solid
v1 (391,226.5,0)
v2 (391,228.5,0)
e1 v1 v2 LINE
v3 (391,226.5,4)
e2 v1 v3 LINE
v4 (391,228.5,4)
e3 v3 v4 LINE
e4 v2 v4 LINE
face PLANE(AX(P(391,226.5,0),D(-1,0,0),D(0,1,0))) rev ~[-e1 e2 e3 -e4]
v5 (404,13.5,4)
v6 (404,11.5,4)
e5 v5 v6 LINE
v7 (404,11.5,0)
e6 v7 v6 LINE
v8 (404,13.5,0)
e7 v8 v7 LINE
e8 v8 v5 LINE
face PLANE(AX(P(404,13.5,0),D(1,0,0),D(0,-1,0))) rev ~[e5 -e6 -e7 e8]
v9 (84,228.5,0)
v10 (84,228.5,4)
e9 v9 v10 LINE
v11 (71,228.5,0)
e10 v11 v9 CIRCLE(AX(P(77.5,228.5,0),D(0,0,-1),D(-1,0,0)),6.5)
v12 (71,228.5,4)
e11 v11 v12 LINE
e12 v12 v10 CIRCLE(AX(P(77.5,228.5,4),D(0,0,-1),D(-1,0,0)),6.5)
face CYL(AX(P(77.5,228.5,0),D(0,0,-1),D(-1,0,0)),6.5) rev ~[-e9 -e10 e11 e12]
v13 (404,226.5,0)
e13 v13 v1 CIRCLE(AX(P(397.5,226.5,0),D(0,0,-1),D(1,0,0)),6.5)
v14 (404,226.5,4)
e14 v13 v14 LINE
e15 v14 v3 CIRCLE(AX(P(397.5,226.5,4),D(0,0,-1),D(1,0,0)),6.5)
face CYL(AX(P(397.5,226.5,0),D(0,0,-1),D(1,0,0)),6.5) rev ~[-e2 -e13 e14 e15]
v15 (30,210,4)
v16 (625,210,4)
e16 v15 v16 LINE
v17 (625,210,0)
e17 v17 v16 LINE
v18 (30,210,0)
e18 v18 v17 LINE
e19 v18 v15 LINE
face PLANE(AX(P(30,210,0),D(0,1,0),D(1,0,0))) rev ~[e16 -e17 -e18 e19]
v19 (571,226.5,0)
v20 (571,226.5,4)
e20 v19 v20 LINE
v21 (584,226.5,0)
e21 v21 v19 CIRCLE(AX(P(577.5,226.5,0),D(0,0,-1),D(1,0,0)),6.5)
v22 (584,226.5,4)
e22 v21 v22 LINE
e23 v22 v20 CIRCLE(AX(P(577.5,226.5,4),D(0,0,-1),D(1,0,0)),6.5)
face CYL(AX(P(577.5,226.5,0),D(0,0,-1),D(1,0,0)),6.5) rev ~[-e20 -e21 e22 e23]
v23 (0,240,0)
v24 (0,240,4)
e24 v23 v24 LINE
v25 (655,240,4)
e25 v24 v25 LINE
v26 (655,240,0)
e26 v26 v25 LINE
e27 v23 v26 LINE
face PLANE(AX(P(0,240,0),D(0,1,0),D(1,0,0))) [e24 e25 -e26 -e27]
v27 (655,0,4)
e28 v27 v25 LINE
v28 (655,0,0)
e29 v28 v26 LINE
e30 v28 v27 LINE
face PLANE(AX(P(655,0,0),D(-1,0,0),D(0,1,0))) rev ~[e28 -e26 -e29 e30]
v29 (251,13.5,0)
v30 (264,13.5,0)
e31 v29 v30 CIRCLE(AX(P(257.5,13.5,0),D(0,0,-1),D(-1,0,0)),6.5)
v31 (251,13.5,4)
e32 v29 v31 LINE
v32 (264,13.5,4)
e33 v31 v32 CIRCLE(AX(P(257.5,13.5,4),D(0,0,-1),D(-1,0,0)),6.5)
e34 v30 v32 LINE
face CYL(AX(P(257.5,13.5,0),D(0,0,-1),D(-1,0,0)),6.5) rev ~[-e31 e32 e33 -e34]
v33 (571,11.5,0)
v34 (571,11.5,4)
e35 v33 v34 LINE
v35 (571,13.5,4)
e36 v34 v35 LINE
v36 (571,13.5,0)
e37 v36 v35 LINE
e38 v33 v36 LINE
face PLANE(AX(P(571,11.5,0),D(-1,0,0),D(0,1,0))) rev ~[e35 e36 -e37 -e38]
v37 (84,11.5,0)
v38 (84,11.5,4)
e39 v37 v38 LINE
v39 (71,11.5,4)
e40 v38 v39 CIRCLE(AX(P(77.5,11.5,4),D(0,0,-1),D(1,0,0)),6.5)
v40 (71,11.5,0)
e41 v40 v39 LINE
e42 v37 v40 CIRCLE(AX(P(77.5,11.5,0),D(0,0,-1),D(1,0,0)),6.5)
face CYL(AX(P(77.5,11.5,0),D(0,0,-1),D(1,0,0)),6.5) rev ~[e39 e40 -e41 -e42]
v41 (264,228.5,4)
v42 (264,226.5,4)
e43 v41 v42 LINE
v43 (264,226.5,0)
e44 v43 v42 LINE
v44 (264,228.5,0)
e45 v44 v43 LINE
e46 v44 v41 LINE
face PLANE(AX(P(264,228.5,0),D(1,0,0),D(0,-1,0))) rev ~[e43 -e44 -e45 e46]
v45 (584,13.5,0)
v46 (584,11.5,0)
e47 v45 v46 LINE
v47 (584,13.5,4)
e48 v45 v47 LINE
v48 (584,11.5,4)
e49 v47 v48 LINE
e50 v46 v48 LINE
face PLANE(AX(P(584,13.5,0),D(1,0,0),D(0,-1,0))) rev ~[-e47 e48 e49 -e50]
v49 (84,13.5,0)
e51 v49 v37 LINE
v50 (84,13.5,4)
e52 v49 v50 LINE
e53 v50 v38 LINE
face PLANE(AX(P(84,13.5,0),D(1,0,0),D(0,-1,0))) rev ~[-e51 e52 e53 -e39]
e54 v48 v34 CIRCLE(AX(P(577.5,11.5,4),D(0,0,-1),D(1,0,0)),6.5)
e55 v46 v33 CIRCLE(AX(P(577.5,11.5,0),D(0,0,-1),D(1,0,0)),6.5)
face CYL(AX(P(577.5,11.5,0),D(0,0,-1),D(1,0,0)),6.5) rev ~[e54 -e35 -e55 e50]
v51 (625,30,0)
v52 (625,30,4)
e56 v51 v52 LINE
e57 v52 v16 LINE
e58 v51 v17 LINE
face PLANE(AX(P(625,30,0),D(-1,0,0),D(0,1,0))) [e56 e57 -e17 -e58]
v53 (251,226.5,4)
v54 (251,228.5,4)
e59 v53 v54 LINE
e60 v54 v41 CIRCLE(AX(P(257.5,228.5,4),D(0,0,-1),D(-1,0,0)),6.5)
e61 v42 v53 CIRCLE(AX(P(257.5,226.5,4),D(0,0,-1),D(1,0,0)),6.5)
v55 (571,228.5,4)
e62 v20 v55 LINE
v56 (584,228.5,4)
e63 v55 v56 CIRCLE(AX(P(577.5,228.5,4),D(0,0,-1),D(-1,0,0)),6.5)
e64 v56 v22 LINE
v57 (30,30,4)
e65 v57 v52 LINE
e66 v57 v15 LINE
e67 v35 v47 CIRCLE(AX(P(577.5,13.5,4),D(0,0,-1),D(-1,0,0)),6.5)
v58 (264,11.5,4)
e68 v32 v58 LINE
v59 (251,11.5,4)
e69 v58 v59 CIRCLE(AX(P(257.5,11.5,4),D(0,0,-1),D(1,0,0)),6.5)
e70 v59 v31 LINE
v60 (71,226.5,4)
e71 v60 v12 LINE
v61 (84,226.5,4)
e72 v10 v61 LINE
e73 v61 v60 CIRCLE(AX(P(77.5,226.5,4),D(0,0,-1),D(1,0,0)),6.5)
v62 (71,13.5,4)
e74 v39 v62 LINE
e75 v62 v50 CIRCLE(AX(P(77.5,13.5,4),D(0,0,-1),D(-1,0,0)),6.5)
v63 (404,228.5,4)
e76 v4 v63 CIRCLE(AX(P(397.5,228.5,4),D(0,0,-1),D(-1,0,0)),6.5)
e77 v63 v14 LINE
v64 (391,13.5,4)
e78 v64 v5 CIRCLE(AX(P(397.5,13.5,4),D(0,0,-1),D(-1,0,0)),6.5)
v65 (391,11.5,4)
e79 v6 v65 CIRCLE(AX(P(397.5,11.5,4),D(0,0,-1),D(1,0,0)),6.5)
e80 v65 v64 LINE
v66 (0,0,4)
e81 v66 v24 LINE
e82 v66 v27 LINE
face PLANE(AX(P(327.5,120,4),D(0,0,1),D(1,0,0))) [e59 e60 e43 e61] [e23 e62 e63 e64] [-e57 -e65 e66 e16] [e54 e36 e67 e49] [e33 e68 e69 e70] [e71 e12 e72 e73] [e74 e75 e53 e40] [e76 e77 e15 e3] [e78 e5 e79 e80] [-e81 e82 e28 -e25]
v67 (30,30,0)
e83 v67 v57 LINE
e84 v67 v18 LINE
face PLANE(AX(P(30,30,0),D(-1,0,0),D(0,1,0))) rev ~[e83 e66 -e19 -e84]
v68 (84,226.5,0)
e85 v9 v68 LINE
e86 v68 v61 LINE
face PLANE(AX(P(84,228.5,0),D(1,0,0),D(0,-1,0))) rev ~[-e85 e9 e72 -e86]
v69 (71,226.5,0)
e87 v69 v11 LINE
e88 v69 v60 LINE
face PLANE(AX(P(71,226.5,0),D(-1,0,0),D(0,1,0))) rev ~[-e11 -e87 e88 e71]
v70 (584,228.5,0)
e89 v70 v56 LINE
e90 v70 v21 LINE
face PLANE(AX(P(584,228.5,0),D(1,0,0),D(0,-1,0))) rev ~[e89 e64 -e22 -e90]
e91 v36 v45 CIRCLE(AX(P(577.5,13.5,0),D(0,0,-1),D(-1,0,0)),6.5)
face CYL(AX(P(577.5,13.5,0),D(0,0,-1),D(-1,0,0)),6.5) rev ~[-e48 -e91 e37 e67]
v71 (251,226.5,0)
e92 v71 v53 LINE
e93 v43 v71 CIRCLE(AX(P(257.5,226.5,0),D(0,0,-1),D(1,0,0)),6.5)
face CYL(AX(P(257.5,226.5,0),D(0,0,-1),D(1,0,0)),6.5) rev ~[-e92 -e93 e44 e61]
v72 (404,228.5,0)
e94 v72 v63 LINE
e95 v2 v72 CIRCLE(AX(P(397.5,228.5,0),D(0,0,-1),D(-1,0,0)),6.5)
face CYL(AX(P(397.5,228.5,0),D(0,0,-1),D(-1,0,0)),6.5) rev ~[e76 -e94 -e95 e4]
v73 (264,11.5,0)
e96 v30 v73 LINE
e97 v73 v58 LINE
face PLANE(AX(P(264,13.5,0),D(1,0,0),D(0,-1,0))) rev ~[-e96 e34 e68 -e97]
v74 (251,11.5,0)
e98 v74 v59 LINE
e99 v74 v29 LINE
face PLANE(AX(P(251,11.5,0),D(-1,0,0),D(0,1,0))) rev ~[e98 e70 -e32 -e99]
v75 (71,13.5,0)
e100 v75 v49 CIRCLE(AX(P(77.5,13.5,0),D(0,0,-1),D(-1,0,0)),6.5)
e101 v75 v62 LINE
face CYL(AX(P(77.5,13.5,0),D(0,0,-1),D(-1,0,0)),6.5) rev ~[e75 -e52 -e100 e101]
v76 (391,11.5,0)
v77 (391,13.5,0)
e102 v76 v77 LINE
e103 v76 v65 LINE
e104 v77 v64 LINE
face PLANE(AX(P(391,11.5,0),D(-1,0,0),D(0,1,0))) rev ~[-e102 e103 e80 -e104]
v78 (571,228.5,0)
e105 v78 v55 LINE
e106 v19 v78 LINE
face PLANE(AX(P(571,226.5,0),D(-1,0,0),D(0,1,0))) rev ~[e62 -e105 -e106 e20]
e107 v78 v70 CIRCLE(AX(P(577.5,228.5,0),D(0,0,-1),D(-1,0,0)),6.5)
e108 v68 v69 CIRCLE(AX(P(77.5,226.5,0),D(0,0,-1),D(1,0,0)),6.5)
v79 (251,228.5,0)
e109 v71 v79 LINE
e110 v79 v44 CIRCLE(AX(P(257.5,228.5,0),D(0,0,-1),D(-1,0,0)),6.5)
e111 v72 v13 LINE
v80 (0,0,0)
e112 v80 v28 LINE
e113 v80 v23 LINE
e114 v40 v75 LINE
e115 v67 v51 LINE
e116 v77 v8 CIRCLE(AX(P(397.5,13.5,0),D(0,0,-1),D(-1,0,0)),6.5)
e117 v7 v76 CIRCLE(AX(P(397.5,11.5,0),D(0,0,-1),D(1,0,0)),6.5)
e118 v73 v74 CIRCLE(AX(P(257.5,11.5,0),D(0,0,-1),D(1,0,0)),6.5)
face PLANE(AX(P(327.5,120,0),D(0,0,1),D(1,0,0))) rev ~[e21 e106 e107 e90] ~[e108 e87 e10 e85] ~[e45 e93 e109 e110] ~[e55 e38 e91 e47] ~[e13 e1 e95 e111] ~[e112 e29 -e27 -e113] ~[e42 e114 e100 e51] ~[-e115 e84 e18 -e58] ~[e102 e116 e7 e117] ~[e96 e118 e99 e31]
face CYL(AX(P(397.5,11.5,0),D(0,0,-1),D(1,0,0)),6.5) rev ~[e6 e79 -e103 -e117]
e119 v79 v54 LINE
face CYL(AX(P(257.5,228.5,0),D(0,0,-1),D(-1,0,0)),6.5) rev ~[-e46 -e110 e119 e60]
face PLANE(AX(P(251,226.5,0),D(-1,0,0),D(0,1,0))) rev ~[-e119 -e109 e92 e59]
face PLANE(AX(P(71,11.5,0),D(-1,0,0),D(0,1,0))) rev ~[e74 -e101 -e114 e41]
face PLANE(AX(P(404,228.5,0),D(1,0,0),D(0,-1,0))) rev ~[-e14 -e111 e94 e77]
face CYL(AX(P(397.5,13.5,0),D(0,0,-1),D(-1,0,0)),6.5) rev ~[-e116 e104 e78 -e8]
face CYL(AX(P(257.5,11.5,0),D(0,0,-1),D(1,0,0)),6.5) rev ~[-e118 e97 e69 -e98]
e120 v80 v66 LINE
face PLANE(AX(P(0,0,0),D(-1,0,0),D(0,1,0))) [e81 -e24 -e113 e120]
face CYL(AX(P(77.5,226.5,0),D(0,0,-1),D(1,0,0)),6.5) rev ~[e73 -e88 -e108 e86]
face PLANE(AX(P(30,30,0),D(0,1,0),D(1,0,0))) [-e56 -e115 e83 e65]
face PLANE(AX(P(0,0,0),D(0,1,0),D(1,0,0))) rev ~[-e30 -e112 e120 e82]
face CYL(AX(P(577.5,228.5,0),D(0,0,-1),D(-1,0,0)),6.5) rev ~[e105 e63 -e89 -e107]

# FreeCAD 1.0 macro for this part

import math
import FreeCAD as App
import Part
import Sketcher

V = App.Vector


def add_polygon(sketch, points):
    """Adds a closed chain of lines whose ends are joined by coincident constraints."""
    first, n = sketch.GeometryCount, len(points)
    for a, b in zip(points, points[1:] + points[:1]):
        sketch.addGeometry(Part.LineSegment(App.Vector(*a, 0), App.Vector(*b, 0)), False)
    for i in range(n):
        sketch.addConstraint(Sketcher.Constraint("Coincident", first + i, 2, first + (i + 1) % n, 1))

doc = App.newDocument("Part")
body = doc.addObject("PartDesign::Body", "Body")

sketch1 = body.newObject("Sketcher::SketchObject", "Sketch")
sketch1.AttachmentSupport = (doc.getObject("XY_Plane"), [""])
sketch1.MapMode = "FlatFace"
add_polygon(sketch1, [(0, 240), (0, 0), (655, 0), (655, 240)])
sketch1.addGeometry(Part.ArcOfCircle(Part.Circle(V(77.5, 13.5, 0), V(0, 0, 1), 6.5), math.radians(0), math.radians(180)), False)
sketch1.addGeometry(Part.LineSegment(V(84, 13.5, 0), V(84, 11.5, 0)), False)
sketch1.addGeometry(Part.ArcOfCircle(Part.Circle(V(77.5, 11.5, 0), V(0, 0, 1), 6.5), math.radians(180), math.radians(360)), False)
sketch1.addGeometry(Part.LineSegment(V(71, 11.5, 0), V(71, 13.5, 0)), False)
sketch1.addGeometry(Part.ArcOfCircle(Part.Circle(V(257.5, 13.5, 0), V(0, 0, 1), 6.5), math.radians(0), math.radians(180)), False)
sketch1.addGeometry(Part.LineSegment(V(264, 13.5, 0), V(264, 11.5, 0)), False)
sketch1.addGeometry(Part.ArcOfCircle(Part.Circle(V(257.5, 11.5, 0), V(0, 0, 1), 6.5), math.radians(180), math.radians(360)), False)
sketch1.addGeometry(Part.LineSegment(V(251, 11.5, 0), V(251, 13.5, 0)), False)
sketch1.addGeometry(Part.ArcOfCircle(Part.Circle(V(397.5, 13.5, 0), V(0, 0, 1), 6.5), math.radians(0), math.radians(180)), False)
sketch1.addGeometry(Part.LineSegment(V(404, 13.5, 0), V(404, 11.5, 0)), False)
sketch1.addGeometry(Part.ArcOfCircle(Part.Circle(V(397.5, 11.5, 0), V(0, 0, 1), 6.5), math.radians(180), math.radians(360)), False)
sketch1.addGeometry(Part.LineSegment(V(391, 11.5, 0), V(391, 13.5, 0)), False)
sketch1.addGeometry(Part.ArcOfCircle(Part.Circle(V(577.5, 13.5, 0), V(0, 0, 1), 6.5), math.radians(0), math.radians(180)), False)
sketch1.addGeometry(Part.LineSegment(V(584, 13.5, 0), V(584, 11.5, 0)), False)
sketch1.addGeometry(Part.ArcOfCircle(Part.Circle(V(577.5, 11.5, 0), V(0, 0, 1), 6.5), math.radians(180), math.radians(360)), False)
sketch1.addGeometry(Part.LineSegment(V(571, 11.5, 0), V(571, 13.5, 0)), False)
sketch1.addGeometry(Part.LineSegment(V(71, 226.5, 0), V(71, 228.5, 0)), False)
sketch1.addGeometry(Part.ArcOfCircle(Part.Circle(V(77.5, 228.5, 0), V(0, 0, 1), 6.5), math.radians(0), math.radians(180)), False)
sketch1.addGeometry(Part.LineSegment(V(84, 228.5, 0), V(84, 226.5, 0)), False)
sketch1.addGeometry(Part.ArcOfCircle(Part.Circle(V(77.5, 226.5, 0), V(0, 0, 1), 6.5), math.radians(180), math.radians(360)), False)
sketch1.addGeometry(Part.LineSegment(V(251, 226.5, 0), V(251, 228.5, 0)), False)
sketch1.addGeometry(Part.ArcOfCircle(Part.Circle(V(257.5, 228.5, 0), V(0, 0, 1), 6.5), math.radians(0), math.radians(180)), False)
sketch1.addGeometry(Part.LineSegment(V(264, 228.5, 0), V(264, 226.5, 0)), False)
sketch1.addGeometry(Part.ArcOfCircle(Part.Circle(V(257.5, 226.5, 0), V(0, 0, 1), 6.5), math.radians(180), math.radians(360)), False)
add_polygon(sketch1, [(625, 30), (30, 30), (30, 210), (625, 210)])
sketch1.addGeometry(Part.ArcOfCircle(Part.Circle(V(397.5, 226.5, 0), V(0, 0, 1), 6.5), math.radians(180), math.radians(360)), False)
sketch1.addGeometry(Part.LineSegment(V(391, 226.5, 0), V(391, 228.5, 0)), False)
sketch1.addGeometry(Part.ArcOfCircle(Part.Circle(V(397.5, 228.5, 0), V(0, 0, 1), 6.5), math.radians(0), math.radians(180)), False)
sketch1.addGeometry(Part.LineSegment(V(404, 228.5, 0), V(404, 226.5, 0)), False)
sketch1.addGeometry(Part.LineSegment(V(571, 226.5, 0), V(571, 228.5, 0)), False)
sketch1.addGeometry(Part.ArcOfCircle(Part.Circle(V(577.5, 228.5, 0), V(0, 0, 1), 6.5), math.radians(0), math.radians(180)), False)
sketch1.addGeometry(Part.LineSegment(V(584, 228.5, 0), V(584, 226.5, 0)), False)
sketch1.addGeometry(Part.ArcOfCircle(Part.Circle(V(577.5, 226.5, 0), V(0, 0, 1), 6.5), math.radians(180), math.radians(360)), False)
sketch1.addConstraint(Sketcher.Constraint("Tangent", 4, 1, 5, 1))
sketch1.addConstraint(Sketcher.Constraint("Tangent", 5, 2, 6, 2))
sketch1.addConstraint(Sketcher.Constraint("Tangent", 6, 1, 7, 1))
sketch1.addConstraint(Sketcher.Constraint("Tangent", 7, 2, 4, 2))
sketch1.addConstraint(Sketcher.Constraint("Tangent", 8, 1, 9, 1))
sketch1.addConstraint(Sketcher.Constraint("Tangent", 9, 2, 10, 2))
sketch1.addConstraint(Sketcher.Constraint("Tangent", 10, 1, 11, 1))
sketch1.addConstraint(Sketcher.Constraint("Tangent", 11, 2, 8, 2))
sketch1.addConstraint(Sketcher.Constraint("Tangent", 12, 1, 13, 1))
sketch1.addConstraint(Sketcher.Constraint("Tangent", 13, 2, 14, 2))
sketch1.addConstraint(Sketcher.Constraint("Tangent", 14, 1, 15, 1))
sketch1.addConstraint(Sketcher.Constraint("Tangent", 15, 2, 12, 2))
sketch1.addConstraint(Sketcher.Constraint("Tangent", 16, 1, 17, 1))
sketch1.addConstraint(Sketcher.Constraint("Tangent", 17, 2, 18, 2))
sketch1.addConstraint(Sketcher.Constraint("Tangent", 18, 1, 19, 1))
sketch1.addConstraint(Sketcher.Constraint("Tangent", 19, 2, 16, 2))
sketch1.addConstraint(Sketcher.Constraint("Tangent", 20, 2, 21, 2))
sketch1.addConstraint(Sketcher.Constraint("Tangent", 21, 1, 22, 1))
sketch1.addConstraint(Sketcher.Constraint("Tangent", 22, 2, 23, 2))
sketch1.addConstraint(Sketcher.Constraint("Tangent", 23, 1, 20, 1))
sketch1.addConstraint(Sketcher.Constraint("Tangent", 24, 2, 25, 2))
sketch1.addConstraint(Sketcher.Constraint("Tangent", 25, 1, 26, 1))
sketch1.addConstraint(Sketcher.Constraint("Tangent", 26, 2, 27, 2))
sketch1.addConstraint(Sketcher.Constraint("Tangent", 27, 1, 24, 1))
sketch1.addConstraint(Sketcher.Constraint("Tangent", 32, 1, 33, 1))
sketch1.addConstraint(Sketcher.Constraint("Tangent", 33, 2, 34, 2))
sketch1.addConstraint(Sketcher.Constraint("Tangent", 34, 1, 35, 1))
sketch1.addConstraint(Sketcher.Constraint("Tangent", 35, 2, 32, 2))
sketch1.addConstraint(Sketcher.Constraint("Tangent", 36, 2, 37, 2))
sketch1.addConstraint(Sketcher.Constraint("Tangent", 37, 1, 38, 1))
sketch1.addConstraint(Sketcher.Constraint("Tangent", 38, 2, 39, 2))
sketch1.addConstraint(Sketcher.Constraint("Tangent", 39, 1, 36, 1))
sketch1.addConstraint(Sketcher.Constraint("Vertical", 0))
sketch1.addConstraint(Sketcher.Constraint("Horizontal", 1))
sketch1.addConstraint(Sketcher.Constraint("Vertical", 2))
sketch1.addConstraint(Sketcher.Constraint("Horizontal", 3))
sketch1.addConstraint(Sketcher.Constraint("Vertical", 5))
sketch1.addConstraint(Sketcher.Constraint("Vertical", 7))
sketch1.addConstraint(Sketcher.Constraint("Vertical", 9))
sketch1.addConstraint(Sketcher.Constraint("Vertical", 11))
sketch1.addConstraint(Sketcher.Constraint("Vertical", 13))
sketch1.addConstraint(Sketcher.Constraint("Vertical", 15))
sketch1.addConstraint(Sketcher.Constraint("Vertical", 17))
sketch1.addConstraint(Sketcher.Constraint("Vertical", 19))
sketch1.addConstraint(Sketcher.Constraint("Vertical", 20))
sketch1.addConstraint(Sketcher.Constraint("Vertical", 22))
sketch1.addConstraint(Sketcher.Constraint("Vertical", 24))
sketch1.addConstraint(Sketcher.Constraint("Vertical", 26))
sketch1.addConstraint(Sketcher.Constraint("Horizontal", 28))
sketch1.addConstraint(Sketcher.Constraint("Vertical", 29))
sketch1.addConstraint(Sketcher.Constraint("Horizontal", 30))
sketch1.addConstraint(Sketcher.Constraint("Vertical", 31))
sketch1.addConstraint(Sketcher.Constraint("Vertical", 33))
sketch1.addConstraint(Sketcher.Constraint("Vertical", 35))
sketch1.addConstraint(Sketcher.Constraint("Vertical", 36))
sketch1.addConstraint(Sketcher.Constraint("Vertical", 38))
sketch1.addConstraint(Sketcher.Constraint("Coincident", 0, 2, -1, 1))
sketch1.addConstraint(Sketcher.Constraint("Equal", 6, 8))
sketch1.addConstraint(Sketcher.Constraint("Equal", 10, 12))
sketch1.addConstraint(Sketcher.Constraint("Equal", 14, 16))
sketch1.addConstraint(Sketcher.Constraint("Equal", 18, 21))
sketch1.addConstraint(Sketcher.Constraint("Equal", 23, 25))
sketch1.addConstraint(Sketcher.Constraint("Equal", 27, 32))
sketch1.addConstraint(Sketcher.Constraint("Equal", 34, 37))
sketch1.addConstraint(Sketcher.Constraint("Horizontal", 4, 3, 8, 3))
sketch1.addConstraint(Sketcher.Constraint("Horizontal", 6, 3, 10, 3))
sketch1.addConstraint(Sketcher.Constraint("Horizontal", 8, 3, 12, 3))
sketch1.addConstraint(Sketcher.Constraint("Horizontal", 10, 3, 14, 3))
sketch1.addConstraint(Sketcher.Constraint("Horizontal", 12, 3, 16, 3))
sketch1.addConstraint(Sketcher.Constraint("Horizontal", 14, 3, 18, 3))
sketch1.addConstraint(Sketcher.Constraint("Horizontal", 21, 3, 25, 3))
sketch1.addConstraint(Sketcher.Constraint("Horizontal", 23, 3, 27, 3))
sketch1.addConstraint(Sketcher.Constraint("Horizontal", 27, 3, 32, 3))
sketch1.addConstraint(Sketcher.Constraint("Horizontal", 25, 3, 34, 3))
sketch1.addConstraint(Sketcher.Constraint("Horizontal", 34, 3, 37, 3))
sketch1.addConstraint(Sketcher.Constraint("Horizontal", 32, 3, 39, 3))
sketch1.addConstraint(Sketcher.Constraint("Vertical", 6, 3, 21, 3))
sketch1.addConstraint(Sketcher.Constraint("Vertical", 10, 3, 25, 3))
sketch1.addConstraint(Sketcher.Constraint("Vertical", 14, 3, 32, 3))
sketch1.addConstraint(Sketcher.Constraint("Vertical", 18, 3, 37, 3))
sketch1.addConstraint(Sketcher.Constraint("Equal", 19, 20))
sketch1.addConstraint(Sketcher.Constraint("Radius", 4, 6.5))
sketch1.addConstraint(Sketcher.Constraint("DistanceX", 1, 1, 1, 2, 655.0))
sketch1.addConstraint(Sketcher.Constraint("DistanceX", 28, 2, 28, 1, 595.0))
sketch1.addConstraint(Sketcher.Constraint("DistanceY", 0, 2, 0, 1, 240.0))
sketch1.addConstraint(Sketcher.Constraint("DistanceY", 5, 2, 5, 1, 2.0))
sketch1.addConstraint(Sketcher.Constraint("DistanceY", 29, 1, 29, 2, 180.0))
sketch1.addConstraint(Sketcher.Constraint("DistanceX", -1, 1, 4, 1, 84.0))
sketch1.addConstraint(Sketcher.Constraint("DistanceX", -1, 1, 8, 1, 264.0))
sketch1.addConstraint(Sketcher.Constraint("DistanceX", -1, 1, 12, 1, 404.0))
sketch1.addConstraint(Sketcher.Constraint("DistanceX", -1, 1, 16, 1, 584.0))
sketch1.addConstraint(Sketcher.Constraint("DistanceX", -1, 1, 28, 2, 30.0))
sketch1.addConstraint(Sketcher.Constraint("DistanceY", -1, 1, 28, 2, 30.0))
sketch1.addConstraint(Sketcher.Constraint("DistanceY", 4, 3, 21, 3, 215.0))
sketch1.addConstraint(Sketcher.Constraint("DistanceY", -1, 1, 4, 3, 13.5))
pad1 = body.newObject("PartDesign::Pad", "Pad")
pad1.Profile = sketch1
pad1.Length = 4

doc.recompute()
